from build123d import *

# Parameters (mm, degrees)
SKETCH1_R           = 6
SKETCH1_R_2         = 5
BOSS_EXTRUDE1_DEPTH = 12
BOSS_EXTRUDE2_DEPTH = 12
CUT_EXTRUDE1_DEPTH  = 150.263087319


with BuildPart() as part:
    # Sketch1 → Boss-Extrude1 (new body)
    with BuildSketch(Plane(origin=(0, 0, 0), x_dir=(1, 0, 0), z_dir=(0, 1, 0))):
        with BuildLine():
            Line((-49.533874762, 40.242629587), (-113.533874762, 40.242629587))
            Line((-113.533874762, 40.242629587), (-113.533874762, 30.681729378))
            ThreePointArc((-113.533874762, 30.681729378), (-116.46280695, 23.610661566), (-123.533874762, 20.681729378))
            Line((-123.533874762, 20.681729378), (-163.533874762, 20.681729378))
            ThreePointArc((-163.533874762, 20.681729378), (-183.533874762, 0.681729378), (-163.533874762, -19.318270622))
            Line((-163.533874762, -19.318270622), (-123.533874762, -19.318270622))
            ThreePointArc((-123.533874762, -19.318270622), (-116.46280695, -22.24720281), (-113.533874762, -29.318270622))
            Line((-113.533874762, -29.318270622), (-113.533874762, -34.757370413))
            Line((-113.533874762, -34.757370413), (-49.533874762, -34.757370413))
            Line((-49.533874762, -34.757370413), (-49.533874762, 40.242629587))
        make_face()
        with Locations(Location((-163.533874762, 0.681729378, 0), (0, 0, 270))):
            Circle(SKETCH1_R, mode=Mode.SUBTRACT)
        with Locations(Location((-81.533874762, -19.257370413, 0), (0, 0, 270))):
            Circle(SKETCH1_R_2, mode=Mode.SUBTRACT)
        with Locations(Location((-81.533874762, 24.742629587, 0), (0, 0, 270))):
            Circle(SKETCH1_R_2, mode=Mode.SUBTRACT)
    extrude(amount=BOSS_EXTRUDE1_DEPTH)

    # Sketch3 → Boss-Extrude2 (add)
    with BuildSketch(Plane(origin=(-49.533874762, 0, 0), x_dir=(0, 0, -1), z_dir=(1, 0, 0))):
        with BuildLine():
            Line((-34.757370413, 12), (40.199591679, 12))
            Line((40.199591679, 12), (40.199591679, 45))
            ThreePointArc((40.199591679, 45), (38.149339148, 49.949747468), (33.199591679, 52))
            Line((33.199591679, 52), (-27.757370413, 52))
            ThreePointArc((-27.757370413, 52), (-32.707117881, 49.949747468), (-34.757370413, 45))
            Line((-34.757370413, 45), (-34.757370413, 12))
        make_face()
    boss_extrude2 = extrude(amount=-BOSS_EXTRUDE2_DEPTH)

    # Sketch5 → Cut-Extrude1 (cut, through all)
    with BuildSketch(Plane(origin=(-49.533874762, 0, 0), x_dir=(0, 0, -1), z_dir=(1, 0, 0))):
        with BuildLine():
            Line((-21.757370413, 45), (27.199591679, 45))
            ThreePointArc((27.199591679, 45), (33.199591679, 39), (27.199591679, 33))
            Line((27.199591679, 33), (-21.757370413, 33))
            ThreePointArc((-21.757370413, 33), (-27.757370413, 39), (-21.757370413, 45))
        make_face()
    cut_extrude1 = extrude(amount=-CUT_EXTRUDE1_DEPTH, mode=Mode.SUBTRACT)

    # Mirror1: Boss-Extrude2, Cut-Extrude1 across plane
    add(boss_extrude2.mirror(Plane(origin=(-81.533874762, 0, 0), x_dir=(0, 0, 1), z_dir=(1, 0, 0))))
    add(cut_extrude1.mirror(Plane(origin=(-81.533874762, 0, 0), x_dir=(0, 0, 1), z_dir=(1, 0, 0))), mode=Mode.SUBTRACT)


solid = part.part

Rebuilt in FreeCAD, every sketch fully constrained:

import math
import FreeCAD as App
import Part
import Sketcher
from FreeCAD import Vector
Q = App.Units.Quantity

doc = App.newDocument("Part")
body = doc.addObject("PartDesign::Body", "Body")

sketch1 = body.newObject("Sketcher::SketchObject", "Sketch")
sketch1.AttachmentSupport = (doc.getObject("XZ_Plane"), [""])
sketch1.MapMode = "FlatFace"
sketch1.addGeometry(Part.LineSegment(Vector(-50, -40, 0), Vector(-114, -40, 0)), False)
sketch1.addGeometry(Part.LineSegment(Vector(-114, -40, 0), Vector(-114, -31, 0)), False)
sketch1.addGeometry(Part.ArcOfCircle(Part.Circle(Vector(-124, -31, 0), Vector(0, 0, 1), 10), math.radians(0), math.radians(90)), False)
sketch1.addGeometry(Part.LineSegment(Vector(-124, -21, 0), Vector(-164, -21, 0)), False)
sketch1.addGeometry(Part.ArcOfCircle(Part.Circle(Vector(-164, -1, 0), Vector(0, 0, 1), 20), math.radians(90), math.radians(270)), False)
sketch1.addGeometry(Part.LineSegment(Vector(-164, 19, 0), Vector(-124, 19, 0)), False)
sketch1.addGeometry(Part.ArcOfCircle(Part.Circle(Vector(-124, 29, 0), Vector(0, 0, 1), 10), math.radians(-90), math.radians(0)), False)
sketch1.addGeometry(Part.LineSegment(Vector(-114, 29, 0), Vector(-114, 35, 0)), False)
sketch1.addGeometry(Part.LineSegment(Vector(-114, 35, 0), Vector(-50, 35, 0)), False)
sketch1.addGeometry(Part.LineSegment(Vector(-50, 35, 0), Vector(-50, -40, 0)), False)
sketch1.addGeometry(Part.Circle(Vector(-164, -1, 0), Vector(0, 0, 1), 6), False)
sketch1.addGeometry(Part.Circle(Vector(-82, 19, 0), Vector(0, 0, 1), 5), False)
sketch1.addGeometry(Part.Circle(Vector(-82, -25, 0), Vector(0, 0, 1), 5), False)
sketch1.addConstraint(Sketcher.Constraint("Coincident", 0, 2, 1, 1))
sketch1.addConstraint(Sketcher.Constraint("Tangent", 1, 2, 2, 1))
sketch1.addConstraint(Sketcher.Constraint("Tangent", 2, 2, 3, 1))
sketch1.addConstraint(Sketcher.Constraint("Tangent", 3, 2, 4, 2))
sketch1.addConstraint(Sketcher.Constraint("Tangent", 4, 1, 5, 1))
sketch1.addConstraint(Sketcher.Constraint("Tangent", 5, 2, 6, 1))
sketch1.addConstraint(Sketcher.Constraint("Tangent", 6, 2, 7, 1))
sketch1.addConstraint(Sketcher.Constraint("Coincident", 7, 2, 8, 1))
sketch1.addConstraint(Sketcher.Constraint("Coincident", 8, 2, 9, 1))
sketch1.addConstraint(Sketcher.Constraint("Coincident", 9, 2, 0, 1))
sketch1.addConstraint(Sketcher.Constraint("Horizontal", 0))
sketch1.addConstraint(Sketcher.Constraint("Vertical", 1))
sketch1.addConstraint(Sketcher.Constraint("Horizontal", 3))
sketch1.addConstraint(Sketcher.Constraint("Horizontal", 5))
sketch1.addConstraint(Sketcher.Constraint("Vertical", 7))
sketch1.addConstraint(Sketcher.Constraint("Horizontal", 8))
sketch1.addConstraint(Sketcher.Constraint("Vertical", 9))
sketch1.addConstraint(Sketcher.Constraint("Coincident", 10, 3, 4, 3))
sketch1.addConstraint(Sketcher.Constraint("Equal", 2, 6))
sketch1.addConstraint(Sketcher.Constraint("Equal", 11, 12))
sketch1.addConstraint(Sketcher.Constraint("Vertical", 2, 3, 6, 3))
sketch1.addConstraint(Sketcher.Constraint("Vertical", 11, 3, 12, 3))
sketch1.addConstraint(Sketcher.Constraint("Diameter", 10, Q("12 mm")))
sketch1.addConstraint(Sketcher.Constraint("Diameter", 11, Q("10 mm")))
sketch1.addConstraint(Sketcher.Constraint("Radius", 2, Q("10 mm")))
sketch1.addConstraint(Sketcher.Constraint("Radius", 4, Q("20 mm")))
sketch1.addConstraint(Sketcher.Constraint("DistanceX", 0, 2, 0, 1, Q("64 mm")))
sketch1.addConstraint(Sketcher.Constraint("DistanceX", 3, 2, 3, 1, Q("40 mm")))
sketch1.addConstraint(Sketcher.Constraint("DistanceY", 9, 2, 9, 1, Q("75 mm")))
sketch1.addConstraint(Sketcher.Constraint("DistanceX", 6, 3, 11, 3, Q("42 mm")))
sketch1.addConstraint(Sketcher.Constraint("DistanceY", 12, 3, 11, 3, Q("44 mm")))
sketch1.addConstraint(Sketcher.Constraint("DistanceY", 0, 2, 12, 3, Q("15.5 mm")))
sketch1.addConstraint(Sketcher.Constraint("DistanceY", 1, 1, 1, 2, Q("9.5609 mm")))
sketch1.addConstraint(Sketcher.Constraint("DistanceY", 2, 3, -1, 1, Q("30.681729 mm")))
sketch1.addConstraint(Sketcher.Constraint("DistanceX", 2, 3, -1, 1, Q("123.533875 mm")))
pad1 = body.newObject("PartDesign::Pad", "Pad")
pad1.Profile = sketch1
pad1.Length = 12
pad1.Reversed = True

sketch2 = body.newObject("Sketcher::SketchObject", "Sketch001")
sketch2.AttachmentSupport = (doc.getObject("YZ_Plane"), [""])
sketch2.MapMode = "FlatFace"
sketch2.AttachmentOffset = App.Placement(Vector(0, 0, -49.533875), App.Rotation())
sketch2.addGeometry(Part.LineSegment(Vector(12, 35, 0), Vector(12, -40, 0)), False)
sketch2.addGeometry(Part.LineSegment(Vector(12, -40, 0), Vector(45, -40, 0)), False)
sketch2.addGeometry(Part.ArcOfCircle(Part.Circle(Vector(45, -33, 0), Vector(0, 0, 1), 7), math.radians(-90), math.radians(0)), False)
sketch2.addGeometry(Part.LineSegment(Vector(52, -33, 0), Vector(52, 28, 0)), False)
sketch2.addGeometry(Part.ArcOfCircle(Part.Circle(Vector(45, 28, 0), Vector(0, 0, 1), 7), math.radians(0), math.radians(90)), False)
sketch2.addGeometry(Part.LineSegment(Vector(45, 35, 0), Vector(12, 35, 0)), False)
sketch2.addConstraint(Sketcher.Constraint("Coincident", 0, 2, 1, 1))
sketch2.addConstraint(Sketcher.Constraint("Tangent", 1, 2, 2, 1))
sketch2.addConstraint(Sketcher.Constraint("Tangent", 2, 2, 3, 1))
sketch2.addConstraint(Sketcher.Constraint("Tangent", 3, 2, 4, 1))
sketch2.addConstraint(Sketcher.Constraint("Tangent", 4, 2, 5, 1))
sketch2.addConstraint(Sketcher.Constraint("Coincident", 5, 2, 0, 1))
sketch2.addConstraint(Sketcher.Constraint("Vertical", 0))
sketch2.addConstraint(Sketcher.Constraint("Horizontal", 1))
sketch2.addConstraint(Sketcher.Constraint("Vertical", 3))
sketch2.addConstraint(Sketcher.Constraint("Horizontal", 5))
sketch2.addConstraint(Sketcher.Constraint("Equal", 2, 4))
sketch2.addConstraint(Sketcher.Constraint("Radius", 2, Q("7 mm")))
sketch2.addConstraint(Sketcher.Constraint("DistanceX", 1, 1, 1, 2, Q("33 mm")))
sketch2.addConstraint(Sketcher.Constraint("DistanceX", -1, 1, 2, 3, Q("45 mm")))
sketch2.addConstraint(Sketcher.Constraint("DistanceY", 0, 2, 0, 1, Q("74.956962 mm")))
sketch2.addConstraint(Sketcher.Constraint("DistanceY", 2, 3, -1, 1, Q("33.199592 mm")))
pad2 = body.newObject("PartDesign::Pad", "Pad001")
pad2.Profile = sketch2
pad2.Length = 12
pad2.Reversed = True

sketch3 = body.newObject("Sketcher::SketchObject", "Sketch002")
sketch3.AttachmentSupport = (doc.getObject("YZ_Plane"), [""])
sketch3.MapMode = "FlatFace"
sketch3.AttachmentOffset = App.Placement(Vector(0, 0, -49.533875), App.Rotation())
sketch3.addGeometry(Part.LineSegment(Vector(45, -27, 0), Vector(45, 22, 0)), False)
sketch3.addGeometry(Part.ArcOfCircle(Part.Circle(Vector(39, 22, 0), Vector(0, 0, 1), 6), math.radians(0), math.radians(180)), False)
sketch3.addGeometry(Part.LineSegment(Vector(33, 22, 0), Vector(33, -27, 0)), False)
sketch3.addGeometry(Part.ArcOfCircle(Part.Circle(Vector(39, -27, 0), Vector(0, 0, 1), 6), math.radians(180), math.radians(360)), False)
sketch3.addConstraint(Sketcher.Constraint("Tangent", 0, 2, 1, 1))
sketch3.addConstraint(Sketcher.Constraint("Tangent", 1, 2, 2, 1))
sketch3.addConstraint(Sketcher.Constraint("Tangent", 2, 2, 3, 1))
sketch3.addConstraint(Sketcher.Constraint("Tangent", 3, 2, 0, 1))
sketch3.addConstraint(Sketcher.Constraint("Vertical", 0))
sketch3.addConstraint(Sketcher.Constraint("Vertical", 2))
sketch3.addConstraint(Sketcher.Constraint("Radius", 1, Q("6 mm")))
sketch3.addConstraint(Sketcher.Constraint("DistanceX", -1, 1, 1, 3, Q("39 mm")))
sketch3.addConstraint(Sketcher.Constraint("DistanceY", 0, 1, 0, 2, Q("48.956962 mm")))
sketch3.addConstraint(Sketcher.Constraint("DistanceY", -1, 1, 1, 3, Q("21.75737 mm")))
pocket1 = body.newObject("PartDesign::Pocket", "Pocket")
pocket1.Profile = sketch3
pocket1.Type = "ThroughAll"
doc.recompute()

datumplane = body.newObject("PartDesign::Plane", "DatumPlane")
datumplane.AttachmentSupport = (doc.getObject("YZ_Plane"), [""])
datumplane.MapMode = "FlatFace"
datumplane.AttachmentOffset = App.Placement(Vector(0, 0, -81.533875), App.Rotation())
mirrored = body.newObject("PartDesign::Mirrored", "Mirrored")
mirrored.Originals = [pad2, pocket1]
mirrored.MirrorPlane = (datumplane, [""])
body.Tip = mirrored

doc.recompute()
